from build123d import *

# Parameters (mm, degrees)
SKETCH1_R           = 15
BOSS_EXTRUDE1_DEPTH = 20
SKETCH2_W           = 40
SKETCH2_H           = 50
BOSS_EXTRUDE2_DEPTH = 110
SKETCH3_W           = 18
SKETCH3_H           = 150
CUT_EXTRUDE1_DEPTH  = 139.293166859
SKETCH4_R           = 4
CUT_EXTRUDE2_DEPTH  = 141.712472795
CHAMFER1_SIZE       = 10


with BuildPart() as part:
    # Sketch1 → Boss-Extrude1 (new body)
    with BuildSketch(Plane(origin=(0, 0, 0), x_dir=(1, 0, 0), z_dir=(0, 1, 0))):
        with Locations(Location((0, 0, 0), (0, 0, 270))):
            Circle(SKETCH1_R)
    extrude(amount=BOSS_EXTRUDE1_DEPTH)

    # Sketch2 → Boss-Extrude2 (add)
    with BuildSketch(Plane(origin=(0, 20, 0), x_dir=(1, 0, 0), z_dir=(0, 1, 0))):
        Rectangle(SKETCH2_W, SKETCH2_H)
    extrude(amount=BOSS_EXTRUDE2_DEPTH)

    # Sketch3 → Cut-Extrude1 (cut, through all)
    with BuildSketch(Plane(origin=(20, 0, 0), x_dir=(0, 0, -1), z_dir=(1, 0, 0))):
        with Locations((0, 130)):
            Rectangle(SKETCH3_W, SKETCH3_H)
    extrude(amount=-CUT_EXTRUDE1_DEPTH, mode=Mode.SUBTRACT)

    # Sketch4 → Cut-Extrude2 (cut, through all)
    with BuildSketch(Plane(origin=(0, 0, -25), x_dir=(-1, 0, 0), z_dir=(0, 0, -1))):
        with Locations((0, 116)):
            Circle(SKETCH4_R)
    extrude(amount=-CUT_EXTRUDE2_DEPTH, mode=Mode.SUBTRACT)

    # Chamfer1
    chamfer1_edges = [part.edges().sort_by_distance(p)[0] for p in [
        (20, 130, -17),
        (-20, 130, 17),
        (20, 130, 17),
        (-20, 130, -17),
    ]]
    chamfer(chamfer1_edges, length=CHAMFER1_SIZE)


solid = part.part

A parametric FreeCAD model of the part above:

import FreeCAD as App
import Part
import Sketcher

V = App.Vector
Q = App.Units.Quantity


def edges_at(feature, points):
    """Names of the edges that pass closest to the given points."""
    edges = feature.Shape.Edges
    near = lambda p: min(range(len(edges)), key=lambda i: edges[i].distToShape(Part.Vertex(*p))[0])
    return sorted({f"Edge{near(p) + 1}" for p in points})


def add_polygon(sketch, points):
    """Adds a closed chain of lines whose ends are joined by coincident constraints."""
    first, n = sketch.GeometryCount, len(points)
    for a, b in zip(points, points[1:] + points[:1]):
        sketch.addGeometry(Part.LineSegment(App.Vector(*a, 0), App.Vector(*b, 0)), False)
    for i in range(n):
        sketch.addConstraint(Sketcher.Constraint("Coincident", first + i, 2, first + (i + 1) % n, 1))

doc = App.newDocument("Part")
params = doc.addObject("Spreadsheet::Sheet", "Params")
for row, (alias, value) in enumerate([
    ("sketch1_diameter", "30 mm"),
    ("pad1_length", "20 mm"),
    ("sketch2_width", "40 mm"),
    ("sketch2_height", "50 mm"),
    ("pad2_length", "110 mm"),
    ("sketch3_width", "150 mm"),
    ("sketch3_height", "18 mm"),
    ("sketch4_diameter", "8 mm"),
    ("chamfer_size", "10 mm"),
], start=1):
    params.set(f"A{row}", alias)
    params.set(f"B{row}", "=" + value)
    params.setAlias(f"B{row}", alias)

body = doc.addObject("PartDesign::Body", "Body")

# Sketch on XZ plane
sketch1 = body.newObject("Sketcher::SketchObject", "Sketch")
sketch1.AttachmentSupport = (doc.getObject("XZ_Plane"), [""])
sketch1.MapMode = "FlatFace"
sketch1.addGeometry(Part.Circle(V(0, 0, 0), V(0, 0, 1), 15), False)
sketch1.addConstraint([
    Sketcher.Constraint("Coincident", 0, 3, -1, 1),
    Sketcher.Constraint("Diameter", 0, Q("30 mm")),
])
sketch1.setExpression("Constraints[1]", "Params.sketch1_diameter")
pad1 = body.newObject("PartDesign::Pad", "Pad")
pad1.Profile = sketch1
pad1.setExpression("Length", "Params.pad1_length")
pad1.Reversed = True

# Sketch on XZ plane
sketch2 = body.newObject("Sketcher::SketchObject", "Sketch001")
sketch2.AttachmentSupport = (doc.getObject("XZ_Plane"), [""])
sketch2.MapMode = "FlatFace"
sketch2.AttachmentOffset = App.Placement(V(0, 0, -20), App.Rotation())
add_polygon(sketch2, [(-20, -25), (-20, 25), (20, 25), (20, -25)])  # lines 0-3
sketch2.addConstraint([
    Sketcher.Constraint("Vertical", 0),
    Sketcher.Constraint("Horizontal", 1),
    Sketcher.Constraint("Vertical", 2),
    Sketcher.Constraint("Horizontal", 3),
    Sketcher.Constraint("Symmetric", 0, 2, 2, 2, -1, 1),
    Sketcher.Constraint("DistanceX", 1, 1, 1, 2, Q("40 mm")),
    Sketcher.Constraint("DistanceY", 0, 1, 0, 2, Q("50 mm")),
])
sketch2.setExpression("Constraints[9]", "Params.sketch2_width")
sketch2.setExpression("Constraints[10]", "Params.sketch2_height")
pad2 = body.newObject("PartDesign::Pad", "Pad001")
pad2.Profile = sketch2
pad2.setExpression("Length", "Params.pad2_length")
pad2.Reversed = True

# Sketch on YZ plane
sketch3 = body.newObject("Sketcher::SketchObject", "Sketch002")
sketch3.AttachmentSupport = (doc.getObject("YZ_Plane"), [""])
sketch3.MapMode = "FlatFace"
sketch3.AttachmentOffset = App.Placement(V(0, 0, 20), App.Rotation())
add_polygon(sketch3, [(205, 9), (55, 9), (55, -9), (205, -9)])  # lines 0-3
sketch3.addConstraint([
    Sketcher.Constraint("Horizontal", 0),
    Sketcher.Constraint("Vertical", 1),
    Sketcher.Constraint("Horizontal", 2),
    Sketcher.Constraint("Vertical", 3),
    Sketcher.Constraint("DistanceX", 0, 2, 0, 1, Q("150 mm")),
    Sketcher.Constraint("DistanceY", 1, 2, 1, 1, Q("18 mm")),
    Sketcher.Constraint("DistanceX", -1, 1, 0, 2, Q("55 mm")),
    Sketcher.Constraint("DistanceY", -1, 1, 0, 2, Q("9 mm")),
])
sketch3.setExpression("Constraints[8]", "Params.sketch3_width")
sketch3.setExpression("Constraints[9]", "Params.sketch3_height")
pocket1 = body.newObject("PartDesign::Pocket", "Pocket")
pocket1.Profile = sketch3
pocket1.Type = "ThroughAll"

# Sketch on XY plane
sketch4 = body.newObject("Sketcher::SketchObject", "Sketch003")
sketch4.AttachmentSupport = (doc.getObject("XY_Plane"), [""])
sketch4.MapMode = "FlatFace"
sketch4.AttachmentOffset = App.Placement(V(0, 0, -25), App.Rotation())
sketch4.addGeometry(Part.Circle(V(0, 116, 0), V(0, 0, 1), 4), False)
sketch4.addConstraint([
    Sketcher.Constraint("PointOnObject", 0, 3, -2),
    Sketcher.Constraint("Diameter", 0, Q("8 mm")),
    Sketcher.Constraint("DistanceY", -1, 1, 0, 3, Q("116 mm")),
])
sketch4.setExpression("Constraints[1]", "Params.sketch4_diameter")
pocket2 = body.newObject("PartDesign::Pocket", "Pocket001")
pocket2.Profile = sketch4
pocket2.Type = "ThroughAll"
pocket2.Reversed = True
doc.recompute()

chamfer = body.newObject("PartDesign::Chamfer", "Chamfer")
chamfer.Base = (pocket2, edges_at(pocket2, [
    (20, 130, -17),
    (-20, 130, 17),
    (20, 130, 17),
    (-20, 130, -17),
]))
chamfer.setExpression("Size", "Params.chamfer_size")

doc.recompute()
